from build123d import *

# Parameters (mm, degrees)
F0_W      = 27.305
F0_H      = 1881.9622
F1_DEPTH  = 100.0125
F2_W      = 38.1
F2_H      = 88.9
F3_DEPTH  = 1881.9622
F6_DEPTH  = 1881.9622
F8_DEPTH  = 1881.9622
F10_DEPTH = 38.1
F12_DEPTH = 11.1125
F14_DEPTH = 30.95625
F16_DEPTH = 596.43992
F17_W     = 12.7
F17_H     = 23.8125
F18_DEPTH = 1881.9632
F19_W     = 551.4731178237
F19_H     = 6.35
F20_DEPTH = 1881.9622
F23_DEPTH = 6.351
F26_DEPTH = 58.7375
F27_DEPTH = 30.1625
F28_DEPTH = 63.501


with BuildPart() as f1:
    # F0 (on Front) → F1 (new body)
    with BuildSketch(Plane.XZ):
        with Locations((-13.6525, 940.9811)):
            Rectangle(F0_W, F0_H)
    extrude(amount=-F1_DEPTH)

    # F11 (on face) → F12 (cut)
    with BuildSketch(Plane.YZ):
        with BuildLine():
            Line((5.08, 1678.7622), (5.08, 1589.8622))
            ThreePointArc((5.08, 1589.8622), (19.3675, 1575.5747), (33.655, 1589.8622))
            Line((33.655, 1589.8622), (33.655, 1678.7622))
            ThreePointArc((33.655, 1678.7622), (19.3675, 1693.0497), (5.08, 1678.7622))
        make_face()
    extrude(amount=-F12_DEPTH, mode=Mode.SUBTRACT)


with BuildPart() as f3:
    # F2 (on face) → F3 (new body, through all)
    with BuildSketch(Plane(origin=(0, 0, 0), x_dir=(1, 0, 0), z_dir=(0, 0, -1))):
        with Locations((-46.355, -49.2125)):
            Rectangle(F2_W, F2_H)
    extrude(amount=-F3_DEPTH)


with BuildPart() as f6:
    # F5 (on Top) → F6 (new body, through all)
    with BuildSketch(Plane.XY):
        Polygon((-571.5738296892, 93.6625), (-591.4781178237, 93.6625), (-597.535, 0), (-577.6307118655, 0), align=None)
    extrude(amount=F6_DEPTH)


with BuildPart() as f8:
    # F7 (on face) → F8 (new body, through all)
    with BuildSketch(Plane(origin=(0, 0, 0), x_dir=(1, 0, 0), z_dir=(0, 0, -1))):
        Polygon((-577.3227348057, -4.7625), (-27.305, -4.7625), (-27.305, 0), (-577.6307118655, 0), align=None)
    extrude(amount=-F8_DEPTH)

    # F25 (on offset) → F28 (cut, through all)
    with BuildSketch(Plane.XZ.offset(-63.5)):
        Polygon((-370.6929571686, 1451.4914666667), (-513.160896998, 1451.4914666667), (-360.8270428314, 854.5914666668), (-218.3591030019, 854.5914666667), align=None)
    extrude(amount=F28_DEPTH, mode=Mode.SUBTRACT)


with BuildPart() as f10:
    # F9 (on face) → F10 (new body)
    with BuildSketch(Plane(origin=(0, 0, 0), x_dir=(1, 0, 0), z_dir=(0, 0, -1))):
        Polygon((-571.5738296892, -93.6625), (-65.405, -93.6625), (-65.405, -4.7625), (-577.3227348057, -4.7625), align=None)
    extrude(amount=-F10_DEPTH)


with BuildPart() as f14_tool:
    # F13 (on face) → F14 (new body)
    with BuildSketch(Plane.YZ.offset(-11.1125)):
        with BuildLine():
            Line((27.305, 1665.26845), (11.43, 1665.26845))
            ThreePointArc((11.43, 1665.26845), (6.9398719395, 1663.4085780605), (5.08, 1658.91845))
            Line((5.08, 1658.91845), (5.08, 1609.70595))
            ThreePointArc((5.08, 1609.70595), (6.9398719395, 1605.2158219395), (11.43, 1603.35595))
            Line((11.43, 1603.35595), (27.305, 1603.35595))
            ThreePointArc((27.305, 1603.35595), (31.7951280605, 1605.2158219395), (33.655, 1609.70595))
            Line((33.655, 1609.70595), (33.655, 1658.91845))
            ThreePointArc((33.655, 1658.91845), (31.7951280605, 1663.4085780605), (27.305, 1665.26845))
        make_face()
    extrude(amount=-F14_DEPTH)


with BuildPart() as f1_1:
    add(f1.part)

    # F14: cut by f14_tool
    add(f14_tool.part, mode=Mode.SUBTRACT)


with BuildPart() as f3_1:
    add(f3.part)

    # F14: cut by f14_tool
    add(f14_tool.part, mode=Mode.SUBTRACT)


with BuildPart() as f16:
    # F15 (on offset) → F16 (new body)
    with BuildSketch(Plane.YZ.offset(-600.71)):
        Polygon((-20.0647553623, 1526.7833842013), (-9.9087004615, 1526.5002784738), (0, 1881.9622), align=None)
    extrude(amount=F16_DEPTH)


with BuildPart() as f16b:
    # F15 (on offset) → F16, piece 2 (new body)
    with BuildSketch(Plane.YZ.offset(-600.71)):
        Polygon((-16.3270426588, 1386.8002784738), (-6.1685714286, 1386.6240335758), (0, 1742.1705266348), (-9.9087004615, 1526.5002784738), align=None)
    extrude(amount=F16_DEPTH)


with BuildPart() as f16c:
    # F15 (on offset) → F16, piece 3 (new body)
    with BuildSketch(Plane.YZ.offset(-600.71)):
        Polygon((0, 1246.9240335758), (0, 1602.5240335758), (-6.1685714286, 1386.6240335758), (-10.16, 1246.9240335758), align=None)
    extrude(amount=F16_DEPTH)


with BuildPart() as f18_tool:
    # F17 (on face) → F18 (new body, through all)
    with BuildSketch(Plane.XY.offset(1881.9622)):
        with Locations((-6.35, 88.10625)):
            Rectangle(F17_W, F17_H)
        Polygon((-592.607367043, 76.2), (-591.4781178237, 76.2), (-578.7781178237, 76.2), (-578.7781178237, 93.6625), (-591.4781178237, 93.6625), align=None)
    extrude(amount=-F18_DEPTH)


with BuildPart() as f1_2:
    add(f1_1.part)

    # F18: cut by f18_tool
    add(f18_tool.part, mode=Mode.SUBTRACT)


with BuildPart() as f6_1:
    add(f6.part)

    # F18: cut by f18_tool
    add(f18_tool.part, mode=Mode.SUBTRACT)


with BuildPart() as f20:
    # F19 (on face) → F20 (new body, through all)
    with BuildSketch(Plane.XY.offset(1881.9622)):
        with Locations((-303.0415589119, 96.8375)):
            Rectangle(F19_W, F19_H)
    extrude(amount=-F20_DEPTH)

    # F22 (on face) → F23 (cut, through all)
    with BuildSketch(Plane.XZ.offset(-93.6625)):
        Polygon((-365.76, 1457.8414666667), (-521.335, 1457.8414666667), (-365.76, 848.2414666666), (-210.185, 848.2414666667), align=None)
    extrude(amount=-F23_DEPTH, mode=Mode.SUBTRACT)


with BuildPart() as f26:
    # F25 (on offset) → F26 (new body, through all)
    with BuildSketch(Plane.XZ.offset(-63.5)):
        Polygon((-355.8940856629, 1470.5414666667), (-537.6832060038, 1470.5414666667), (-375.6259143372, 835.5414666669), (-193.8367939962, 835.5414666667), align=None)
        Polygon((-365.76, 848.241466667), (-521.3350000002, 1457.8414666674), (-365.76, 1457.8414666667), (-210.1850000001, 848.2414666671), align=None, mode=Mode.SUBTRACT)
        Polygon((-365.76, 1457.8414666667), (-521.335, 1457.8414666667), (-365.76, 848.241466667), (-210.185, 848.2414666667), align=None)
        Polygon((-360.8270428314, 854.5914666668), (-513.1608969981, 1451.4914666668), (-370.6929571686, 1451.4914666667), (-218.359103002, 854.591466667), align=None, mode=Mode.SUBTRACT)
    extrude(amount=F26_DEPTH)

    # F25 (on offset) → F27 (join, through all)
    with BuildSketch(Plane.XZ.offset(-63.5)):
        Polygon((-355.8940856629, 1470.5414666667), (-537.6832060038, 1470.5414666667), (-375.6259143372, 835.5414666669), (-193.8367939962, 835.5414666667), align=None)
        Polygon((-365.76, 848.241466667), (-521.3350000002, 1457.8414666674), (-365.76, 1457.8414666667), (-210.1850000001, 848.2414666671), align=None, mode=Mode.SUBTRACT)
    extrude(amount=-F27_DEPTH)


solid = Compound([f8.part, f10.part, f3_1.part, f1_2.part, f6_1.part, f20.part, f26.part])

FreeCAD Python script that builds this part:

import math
import FreeCAD as App
import Part
import Sketcher

V = App.Vector
Q = App.Units.Quantity

doc = App.newDocument("Part")
body = doc.addObject("PartDesign::Body", "Body")

# Sketch on XZ plane
sketch1 = body.newObject("Sketcher::SketchObject", "Sketch")
sketch1.AttachmentSupport = (doc.getObject("XZ_Plane"), [""])
sketch1.MapMode = "FlatFace"
sketch1.addGeometry([
    Part.LineSegment(V(-27.305, 1881.9622, 0), V(-27.305, 0, 0)),
    Part.LineSegment(V(-27.305, 0, 0), V(0, 0, 0)),
    Part.LineSegment(V(0, 0, 0), V(0, 1881.9622, 0)),
    Part.LineSegment(V(0, 1881.9622, 0), V(-27.305, 1881.9622, 0)),
], False)
sketch1.addConstraint([
    Sketcher.Constraint("Coincident", 0, 2, 1, 1),
    Sketcher.Constraint("Coincident", 1, 2, 2, 1),
    Sketcher.Constraint("Coincident", 2, 2, 3, 1),
    Sketcher.Constraint("Coincident", 3, 2, 0, 1),
    Sketcher.Constraint("Vertical", 0),
    Sketcher.Constraint("Horizontal", 1),
    Sketcher.Constraint("Vertical", 2),
    Sketcher.Constraint("Horizontal", 3),
    Sketcher.Constraint("Coincident", 1, 2, -1, 1),
    Sketcher.Constraint("DistanceX", 1, 1, 1, 2, Q("1.075 in")),
    Sketcher.Constraint("DistanceY", 0, 2, 0, 1, Q("74.093 in")),
])
pad1 = body.newObject("PartDesign::Pad", "Pad")
pad1.Profile = sketch1
pad1.Length = Q("3.9375 in")
pad1.Reversed = True

# Sketch on YZ plane
sketch2 = body.newObject("Sketcher::SketchObject", "Sketch001")
sketch2.AttachmentSupport = (doc.getObject("YZ_Plane"), [""])
sketch2.MapMode = "FlatFace"
sketch2.addGeometry([
    Part.LineSegment(V(5.08, 1678.7622, 0), V(5.08, 1589.8622, 0)),
    Part.ArcOfCircle(Part.Circle(V(19.3675, 1589.8622, 0), V(0, 0, 1), 14.2875), math.radians(180), math.radians(360)),
    Part.LineSegment(V(33.655, 1589.8622, 0), V(33.655, 1678.7622, 0)),
    Part.ArcOfCircle(Part.Circle(V(19.3675, 1678.7622, 0), V(0, 0, 1), 14.2875), math.radians(0), math.radians(180)),
], False)
sketch2.addConstraint([
    Sketcher.Constraint("Tangent", 0, 2, 1, 1),
    Sketcher.Constraint("Tangent", 1, 2, 2, 1),
    Sketcher.Constraint("Tangent", 2, 2, 3, 1),
    Sketcher.Constraint("Tangent", 3, 2, 0, 1),
    Sketcher.Constraint("Vertical", 0),
    Sketcher.Constraint("Vertical", 2),
    Sketcher.Constraint("DistanceY", 0, 2, 0, 1, Q("3.5 in")),
    Sketcher.Constraint("Radius", 1, Q("0.5625 in")),
    Sketcher.Constraint("DistanceX", -1, 1, 0, 2, Q("0.2 in")),
    Sketcher.Constraint("DistanceY", -1, 1, 1, 3, Q("62.593 in")),
])
pocket1 = body.newObject("PartDesign::Pocket", "Pocket")
pocket1.Profile = sketch2
pocket1.Length = Q("0.4375 in")
body2 = doc.addObject("PartDesign::Body", "Body001")

# Sketch on XY plane
sketch3 = body2.newObject("Sketcher::SketchObject", "Sketch002")
sketch3.AttachmentSupport = (doc.getObject("XY_Plane001"), [""])
sketch3.MapMode = "FlatFace"
sketch3.addGeometry([
    Part.LineSegment(V(-65.405, 4.7625, 0), V(-65.405, 93.6625, 0)),
    Part.LineSegment(V(-65.405, 93.6625, 0), V(-27.305, 93.6625, 0)),
    Part.LineSegment(V(-27.305, 93.6625, 0), V(-27.305, 4.7625, 0)),
    Part.LineSegment(V(-27.305, 4.7625, 0), V(-65.405, 4.7625, 0)),
], False)
sketch3.addConstraint([
    Sketcher.Constraint("Coincident", 0, 2, 1, 1),
    Sketcher.Constraint("Coincident", 1, 2, 2, 1),
    Sketcher.Constraint("Coincident", 2, 2, 3, 1),
    Sketcher.Constraint("Coincident", 3, 2, 0, 1),
    Sketcher.Constraint("Vertical", 0),
    Sketcher.Constraint("Horizontal", 1),
    Sketcher.Constraint("Vertical", 2),
    Sketcher.Constraint("Horizontal", 3),
    Sketcher.Constraint("DistanceX", 1, 1, 1, 2, Q("1.5 in")),
    Sketcher.Constraint("DistanceY", 0, 1, 0, 2, Q("3.5 in")),
    Sketcher.Constraint("DistanceX", 0, 2, -1, 1, Q("2.575 in")),
    Sketcher.Constraint("DistanceY", -1, 1, 0, 2, Q("3.6875 in")),
])
pad2 = body2.newObject("PartDesign::Pad", "Pad001")
pad2.Profile = sketch3
pad2.Length = Q("74.093 in")
body3 = doc.addObject("PartDesign::Body", "Body002")

# Sketch on XY plane
sketch4 = body3.newObject("Sketcher::SketchObject", "Sketch003")
sketch4.AttachmentSupport = (doc.getObject("XY_Plane002"), [""])
sketch4.MapMode = "FlatFace"
sketch4.addGeometry([
    Part.LineSegment(V(-571.57383, 93.6625, 0), V(-591.478118, 93.6625, 0)),
    Part.LineSegment(V(-591.478118, 93.6625, 0), V(-597.535, 0, 0)),
    Part.LineSegment(V(-597.535, 0, 0), V(-577.630712, 0, 0)),
    Part.LineSegment(V(-577.630712, 0, 0), V(-571.57383, 93.6625, 0)),
], False)
sketch4.addConstraint([
    Sketcher.Constraint("Coincident", 0, 2, 1, 1),
    Sketcher.Constraint("Coincident", 1, 2, 2, 1),
    Sketcher.Constraint("Coincident", 2, 2, 3, 1),
    Sketcher.Constraint("Coincident", 3, 2, 0, 1),
    Sketcher.Constraint("Horizontal", 0),
    Sketcher.Constraint("Horizontal", 2),
    Sketcher.Constraint("PointOnObject", 1, 2, -1),
    Sketcher.Constraint("Parallel", 1, 3),
    Sketcher.Constraint("Angle", 1, Q("-93.7 deg")),
    Sketcher.Constraint("DistanceY", -1, 1, 0, 2, Q("3.6875 in")),
    Sketcher.Constraint("DistanceX", 1, 2, -1, 1, Q("23.525 in")),
    Sketcher.Constraint("DistanceX", 0, 2, 0, 1, 19.904288),
])
pad3 = body3.newObject("PartDesign::Pad", "Pad002")
pad3.Profile = sketch4
pad3.Length = Q("74.093 in")
body4 = doc.addObject("PartDesign::Body", "Body003")

# Sketch on XY plane
sketch5 = body4.newObject("Sketcher::SketchObject", "Sketch004")
sketch5.AttachmentSupport = (doc.getObject("XY_Plane003"), [""])
sketch5.MapMode = "FlatFace"
sketch5.addGeometry([
    Part.LineSegment(V(-577.322735, 4.7625, 0), V(-27.305, 4.7625, 0)),
    Part.LineSegment(V(-27.305, 4.7625, 0), V(-27.305, 0, 0)),
    Part.LineSegment(V(-27.305, 0, 0), V(-577.630712, 0, 0)),
    Part.LineSegment(V(-577.630712, 0, 0), V(-577.322735, 4.7625, 0)),
], False)
sketch5.addConstraint([
    Sketcher.Constraint("Coincident", 0, 2, 1, 1),
    Sketcher.Constraint("Coincident", 1, 2, 2, 1),
    Sketcher.Constraint("Coincident", 2, 2, 3, 1),
    Sketcher.Constraint("Coincident", 3, 2, 0, 1),
    Sketcher.Constraint("Horizontal", 0),
    Sketcher.Constraint("Vertical", 1),
    Sketcher.Constraint("Horizontal", 2),
    Sketcher.Constraint("PointOnObject", 1, 2, -1),
    Sketcher.Constraint("Angle", 3, Q("86.3 deg")),
    Sketcher.Constraint("DistanceY", 1, 2, 1, 1, Q("0.1875 in")),
    Sketcher.Constraint("DistanceX", 0, 2, -1, 1, Q("1.075 in")),
    Sketcher.Constraint("DistanceX", 2, 2, 2, 1, 550.325712),
])
pad4 = body4.newObject("PartDesign::Pad", "Pad003")
pad4.Profile = sketch5
pad4.Length = Q("74.093 in")

# Sketch on XZ plane
sketch6 = body4.newObject("Sketcher::SketchObject", "Sketch005")
sketch6.AttachmentSupport = (doc.getObject("XZ_Plane003"), [""])
sketch6.MapMode = "FlatFace"
sketch6.AttachmentOffset = App.Placement(V(0, 0, -2.5 * 25.4), App.Rotation())
sketch6.addGeometry([
    Part.LineSegment(V(-370.692957, 1451.491467, 0), V(-513.160897, 1451.491467, 0)),
    Part.LineSegment(V(-513.160897, 1451.491467, 0), V(-360.827043, 854.591467, 0)),
    Part.LineSegment(V(-360.827043, 854.591467, 0), V(-218.359103, 854.591467, 0)),
    Part.LineSegment(V(-218.359103, 854.591467, 0), V(-370.692957, 1451.491467, 0)),
], False)
sketch6.addConstraint([
    Sketcher.Constraint("Coincident", 0, 2, 1, 1),
    Sketcher.Constraint("Coincident", 1, 2, 2, 1),
    Sketcher.Constraint("Coincident", 2, 2, 3, 1),
    Sketcher.Constraint("Coincident", 3, 2, 0, 1),
    Sketcher.Constraint("Horizontal", 0),
    Sketcher.Constraint("Horizontal", 2),
    Sketcher.Constraint("Parallel", 1, 3),
    Sketcher.Constraint("DistanceY", 1, 2, 0, 2, Q("23.5 in")),
    Sketcher.Constraint("DistanceX", 0, 2, 0, 1, 142.46794),
    Sketcher.Constraint("Distance", 1, 616.031828),
    Sketcher.Constraint("DistanceX", 0, 2, -1, 1, 513.160897),
    Sketcher.Constraint("DistanceY", -1, 1, 0, 2, 1451.491467),
])
pocket2 = body4.newObject("PartDesign::Pocket", "Pocket001")
pocket2.Profile = sketch6
pocket2.Type = "ThroughAll"
pocket2.Reversed = True
body5 = doc.addObject("PartDesign::Body", "Body004")

# Sketch on XY plane
sketch7 = body5.newObject("Sketcher::SketchObject", "Sketch006")
sketch7.AttachmentSupport = (doc.getObject("XY_Plane004"), [""])
sketch7.MapMode = "FlatFace"
sketch7.addGeometry([
    Part.LineSegment(V(-571.57383, 93.6625, 0), V(-65.405, 93.6625, 0)),
    Part.LineSegment(V(-65.405, 93.6625, 0), V(-65.405, 4.7625, 0)),
    Part.LineSegment(V(-65.405, 4.7625, 0), V(-577.322735, 4.7625, 0)),
    Part.LineSegment(V(-577.322735, 4.7625, 0), V(-571.57383, 93.6625, 0)),
], False)
sketch7.addConstraint([
    Sketcher.Constraint("Coincident", 0, 2, 1, 1),
    Sketcher.Constraint("Coincident", 1, 2, 2, 1),
    Sketcher.Constraint("Coincident", 2, 2, 3, 1),
    Sketcher.Constraint("Coincident", 3, 2, 0, 1),
    Sketcher.Constraint("Horizontal", 0),
    Sketcher.Constraint("Vertical", 1),
    Sketcher.Constraint("Horizontal", 2),
    Sketcher.Constraint("DistanceY", 1, 2, 1, 1, Q("3.5 in")),
    Sketcher.Constraint("Angle", 3, Q("86.3 deg")),
    Sketcher.Constraint("DistanceX", 0, 2, -1, 1, Q("2.575 in")),
    Sketcher.Constraint("DistanceY", -1, 1, 0, 2, Q("3.6875 in")),
    Sketcher.Constraint("DistanceX", 0, 1, 0, 2, 506.16883),
])
pad5 = body5.newObject("PartDesign::Pad", "Pad004")
pad5.Profile = sketch7
pad5.Length = Q("1.5 in")
body6 = doc.addObject("PartDesign::Body", "Body005")

# Sketch on YZ plane
sketch8 = body6.newObject("Sketcher::SketchObject", "Sketch007")
sketch8.AttachmentSupport = (doc.getObject("YZ_Plane005"), [""])
sketch8.MapMode = "FlatFace"
sketch8.AttachmentOffset = App.Placement(V(0, 0, -0.4375 * 25.4), App.Rotation())
sketch8.addGeometry([
    Part.LineSegment(V(27.305, 1665.26845, 0), V(11.43, 1665.26845, 0)),  # 0
    Part.ArcOfCircle(Part.Circle(V(11.43, 1658.91845, 0), V(0, 0, 1), 6.35), math.radians(90), math.radians(180)),  # 1
    Part.LineSegment(V(5.08, 1658.91845, 0), V(5.08, 1609.70595, 0)),  # 2
    Part.ArcOfCircle(Part.Circle(V(11.43, 1609.70595, 0), V(0, 0, 1), 6.35), math.radians(180), math.radians(270)),  # 3
    Part.LineSegment(V(11.43, 1603.35595, 0), V(27.305, 1603.35595, 0)),  # 4
    Part.ArcOfCircle(Part.Circle(V(27.305, 1609.70595, 0), V(0, 0, 1), 6.35), math.radians(-90), math.radians(0)),  # 5
    Part.LineSegment(V(33.655, 1609.70595, 0), V(33.655, 1658.91845, 0)),  # 6
    Part.ArcOfCircle(Part.Circle(V(27.305, 1658.91845, 0), V(0, 0, 1), 6.35), math.radians(0), math.radians(90)),  # 7
], False)
sketch8.addConstraint([
    Sketcher.Constraint("Tangent", 0, 2, 1, 1),
    Sketcher.Constraint("Tangent", 1, 2, 2, 1),
    Sketcher.Constraint("Tangent", 2, 2, 3, 1),
    Sketcher.Constraint("Tangent", 3, 2, 4, 1),
    Sketcher.Constraint("Tangent", 4, 2, 5, 1),
    Sketcher.Constraint("Tangent", 5, 2, 6, 1),
    Sketcher.Constraint("Tangent", 6, 2, 7, 1),
    Sketcher.Constraint("Tangent", 7, 2, 0, 1),
    Sketcher.Constraint("Horizontal", 0),
    Sketcher.Constraint("Vertical", 2),
    Sketcher.Constraint("Horizontal", 4),
    Sketcher.Constraint("Vertical", 6),
    Sketcher.Constraint("Equal", 1, 3),
    Sketcher.Constraint("Equal", 3, 5),
    Sketcher.Constraint("Equal", 5, 7),
    Sketcher.Constraint("Radius", 1, Q("0.25 in")),
    Sketcher.Constraint("DistanceX", -1, 1, 1, 2, Q("0.2 in")),
    Sketcher.Constraint("DistanceX", 0, 2, 0, 1, Q("0.625 in")),
    Sketcher.Constraint("DistanceY", 2, 2, 2, 1, Q("1.9375 in")),
    Sketcher.Constraint("DistanceY", -1, 1, 1, 3, 1658.91845),
])
pad6 = body6.newObject("PartDesign::Pad", "Pad005")
pad6.Profile = sketch8
pad6.Length = Q("1.21875 in")
pad6.Reversed = True
doc.recompute()

body7 = doc.addObject("PartDesign::Body", "Body006")
body7.BaseFeature = body6
boolean = body.newObject("PartDesign::Boolean", "Boolean")
boolean.Type = "Cut"
boolean.addObjects([body7])
doc.recompute()

boolean2 = body2.newObject("PartDesign::Boolean", "Boolean001")
boolean2.Type = "Cut"
boolean2.addObjects([body6])
body8 = doc.addObject("PartDesign::Body", "Body007")

# Sketch on YZ plane
sketch9 = body8.newObject("Sketcher::SketchObject", "Sketch008")
sketch9.AttachmentSupport = (doc.getObject("YZ_Plane007"), [""])
sketch9.MapMode = "FlatFace"
sketch9.AttachmentOffset = App.Placement(V(0, 0, -23.65 * 25.4), App.Rotation())
sketch9.addGeometry([
    Part.LineSegment(V(-20.064755, 1526.783384, 0), V(-9.9087, 1526.500278, 0)),
    Part.LineSegment(V(-9.9087, 1526.500278, 0), V(0, 1881.9622, 0)),
    Part.LineSegment(V(0, 1881.9622, 0), V(-20.064755, 1526.783384, 0)),
], False)
sketch9.addConstraint([
    Sketcher.Constraint("Coincident", 0, 2, 1, 1),
    Sketcher.Constraint("Coincident", 1, 2, 2, 1),
    Sketcher.Constraint("Coincident", 2, 2, 0, 1),
    Sketcher.Constraint("PointOnObject", 1, 2, -2),
    Sketcher.Constraint("Perpendicular", 0, 1),
    Sketcher.Constraint("Distance", 1, Q("14 in")),
    Sketcher.Constraint("Distance", 0, Q("0.4 in")),
    Sketcher.Constraint("DistanceY", -1, 1, 1, 2, Q("74.093 in")),
    Sketcher.Constraint("DistanceX", 0, 2, -1, 1, 9.9087),
])
pad7 = body8.newObject("PartDesign::Pad", "Pad006")
pad7.Profile = sketch9
pad7.Length = 596.43992
body9 = doc.addObject("PartDesign::Body", "Body008")

# Sketch on YZ plane
sketch10 = body9.newObject("Sketcher::SketchObject", "Sketch009")
sketch10.AttachmentSupport = (doc.getObject("YZ_Plane008"), [""])
sketch10.MapMode = "FlatFace"
sketch10.AttachmentOffset = App.Placement(V(0, 0, -23.65 * 25.4), App.Rotation())
sketch10.addGeometry([
    Part.LineSegment(V(-16.327043, 1386.800278, 0), V(-6.168571, 1386.624034, 0)),
    Part.LineSegment(V(-6.168571, 1386.624034, 0), V(0, 1742.170527, 0)),
    Part.LineSegment(V(0, 1742.170527, 0), V(-16.327043, 1386.800278, 0)),
], False)
sketch10.addConstraint([
    Sketcher.Constraint("Coincident", 0, 2, 1, 1),
    Sketcher.Constraint("Coincident", 1, 2, 2, 1),
    Sketcher.Constraint("Coincident", 2, 2, 0, 1),
    Sketcher.Constraint("PointOnObject", 1, 2, -2),
    Sketcher.Constraint("Perpendicular", 0, 1),
    Sketcher.Constraint("Distance", 1, Q("14 in")),
    Sketcher.Constraint("Distance", 0, Q("0.4 in")),
    Sketcher.Constraint("DistanceX", 0, 2, -1, 1, 6.168571),
    Sketcher.Constraint("DistanceY", -1, 1, 2, 2, 1386.800278),
])
pad8 = body9.newObject("PartDesign::Pad", "Pad007")
pad8.Profile = sketch10
pad8.Length = 596.43992
body10 = doc.addObject("PartDesign::Body", "Body009")

# Sketch on YZ plane
sketch11 = body10.newObject("Sketcher::SketchObject", "Sketch010")
sketch11.AttachmentSupport = (doc.getObject("YZ_Plane009"), [""])
sketch11.MapMode = "FlatFace"
sketch11.AttachmentOffset = App.Placement(V(0, 0, -23.65 * 25.4), App.Rotation())
sketch11.addGeometry([
    Part.LineSegment(V(0, 1246.924034, 0), V(0, 1602.524034, 0)),
    Part.LineSegment(V(0, 1602.524034, 0), V(-10.16, 1246.924034, 0)),
    Part.LineSegment(V(-10.16, 1246.924034, 0), V(0, 1246.924034, 0)),
], False)
sketch11.addConstraint([
    Sketcher.Constraint("Coincident", 0, 2, 1, 1),
    Sketcher.Constraint("Coincident", 1, 2, 2, 1),
    Sketcher.Constraint("Coincident", 2, 2, 0, 1),
    Sketcher.Constraint("Vertical", 0),
    Sketcher.Constraint("Horizontal", 2),
    Sketcher.Constraint("PointOnObject", 0, 2, -2),
    Sketcher.Constraint("DistanceY", 0, 1, 0, 2, Q("14 in")),
    Sketcher.Constraint("DistanceX", 2, 1, 2, 2, Q("0.4 in")),
    Sketcher.Constraint("DistanceY", -1, 1, 0, 2, 1602.524034),
])
pad9 = body10.newObject("PartDesign::Pad", "Pad008")
pad9.Profile = sketch11
pad9.Length = 596.43992
body11 = doc.addObject("PartDesign::Body", "Body010")
body11.AllowCompound = True

# Sketch on XY plane
sketch12 = body11.newObject("Sketcher::SketchObject", "Sketch011")
sketch12.AttachmentSupport = (doc.getObject("XY_Plane010"), [""])
sketch12.MapMode = "FlatFace"
sketch12.AttachmentOffset = App.Placement(V(0, 0, 74.093 * 25.4), App.Rotation())
sketch12.addGeometry([
    Part.LineSegment(V(-12.7, 100.0125, 0), V(-12.7, 76.2, 0)),  # 0
    Part.LineSegment(V(-12.7, 76.2, 0), V(0, 76.2, 0)),  # 1
    Part.LineSegment(V(0, 76.2, 0), V(0, 100.0125, 0)),  # 2
    Part.LineSegment(V(0, 100.0125, 0), V(-12.7, 100.0125, 0)),  # 3
    Part.LineSegment(V(-592.607367, 76.2, 0), V(-578.778118, 76.2, 0)),  # 4
    Part.LineSegment(V(-578.778118, 76.2, 0), V(-578.778118, 93.6625, 0)),  # 5
    Part.LineSegment(V(-578.778118, 93.6625, 0), V(-591.478118, 93.6625, 0)),  # 6
    Part.LineSegment(V(-591.478118, 93.6625, 0), V(-592.607367, 76.2, 0)),  # 7
], False)
sketch12.addConstraint([
    Sketcher.Constraint("Coincident", 0, 2, 1, 1),
    Sketcher.Constraint("Coincident", 1, 2, 2, 1),
    Sketcher.Constraint("Coincident", 2, 2, 3, 1),
    Sketcher.Constraint("Coincident", 3, 2, 0, 1),
    Sketcher.Constraint("Coincident", 4, 2, 5, 1),
    Sketcher.Constraint("Coincident", 5, 2, 6, 1),
    Sketcher.Constraint("Coincident", 6, 2, 7, 1),
    Sketcher.Constraint("Coincident", 7, 2, 4, 1),
    Sketcher.Constraint("Vertical", 0),
    Sketcher.Constraint("Horizontal", 1),
    Sketcher.Constraint("Vertical", 2),
    Sketcher.Constraint("Horizontal", 3),
    Sketcher.Constraint("Horizontal", 4),
    Sketcher.Constraint("Vertical", 5),
    Sketcher.Constraint("Horizontal", 6),
    Sketcher.Constraint("PointOnObject", 1, 2, -2),
    Sketcher.Constraint("Horizontal", 1, 2, 4, 2),
    Sketcher.Constraint("Equal", 3, 6),
    Sketcher.Constraint("DistanceX", 1, 1, 1, 2, Q("0.5 in")),
    Sketcher.Constraint("DistanceY", -1, 1, 0, 2, Q("3 in")),
    Sketcher.Constraint("Angle", 7, Q("-93.7 deg")),
    Sketcher.Constraint("DistanceY", 0, 2, 0, 1, Q("0.9375 in")),
    Sketcher.Constraint("DistanceY", 5, 1, 5, 2, Q("0.6875 in")),
    Sketcher.Constraint("DistanceX", 4, 2, -1, 1, 578.778118),
])
pad10 = body11.newObject("PartDesign::Pad", "Pad009")
pad10.Profile = sketch12
pad10.Length = 1881.9632
pad10.Reversed = True
doc.recompute()

body12 = doc.addObject("PartDesign::Body", "Body011")
body12.BaseFeature = body11
boolean3 = body.newObject("PartDesign::Boolean", "Boolean002")
boolean3.Type = "Cut"
boolean3.addObjects([body12])
doc.recompute()

boolean4 = body3.newObject("PartDesign::Boolean", "Boolean003")
boolean4.Type = "Cut"
boolean4.addObjects([body11])
body13 = doc.addObject("PartDesign::Body", "Body012")

# Sketch on XY plane
sketch13 = body13.newObject("Sketcher::SketchObject", "Sketch012")
sketch13.AttachmentSupport = (doc.getObject("XY_Plane012"), [""])
sketch13.MapMode = "FlatFace"
sketch13.AttachmentOffset = App.Placement(V(0, 0, 74.093 * 25.4), App.Rotation())
sketch13.addGeometry([
    Part.LineSegment(V(-578.778118, 100.0125, 0), V(-578.778118, 93.6625, 0)),
    Part.LineSegment(V(-578.778118, 93.6625, 0), V(-27.305, 93.6625, 0)),
    Part.LineSegment(V(-27.305, 93.6625, 0), V(-27.305, 100.0125, 0)),
    Part.LineSegment(V(-27.305, 100.0125, 0), V(-578.778118, 100.0125, 0)),
], False)
sketch13.addConstraint([
    Sketcher.Constraint("Coincident", 0, 2, 1, 1),
    Sketcher.Constraint("Coincident", 1, 2, 2, 1),
    Sketcher.Constraint("Coincident", 2, 2, 3, 1),
    Sketcher.Constraint("Coincident", 3, 2, 0, 1),
    Sketcher.Constraint("Vertical", 0),
    Sketcher.Constraint("Horizontal", 1),
    Sketcher.Constraint("Vertical", 2),
    Sketcher.Constraint("Horizontal", 3),
    Sketcher.Constraint("DistanceY", 0, 2, 0, 1, Q("0.25 in")),
    Sketcher.Constraint("DistanceY", -1, 1, 0, 2, Q("3.6875 in")),
    Sketcher.Constraint("DistanceX", 1, 2, -1, 1, Q("1.075 in")),
    Sketcher.Constraint("DistanceX", 1, 1, 1, 2, 551.473118),
])
pad11 = body13.newObject("PartDesign::Pad", "Pad010")
pad11.Profile = sketch13
pad11.Length = Q("74.093 in")
pad11.Reversed = True

# Sketch on XZ plane
sketch14 = body13.newObject("Sketcher::SketchObject", "Sketch013")
sketch14.AttachmentSupport = (doc.getObject("XZ_Plane012"), [""])
sketch14.MapMode = "FlatFace"
sketch14.AttachmentOffset = App.Placement(V(0, 0, -3.6875 * 25.4), App.Rotation())
sketch14.addGeometry([
    Part.LineSegment(V(-365.76, 1457.841467, 0), V(-521.335, 1457.841467, 0)),
    Part.LineSegment(V(-521.335, 1457.841467, 0), V(-365.76, 848.241467, 0)),
    Part.LineSegment(V(-365.76, 848.241467, 0), V(-210.185, 848.241467, 0)),
    Part.LineSegment(V(-210.185, 848.241467, 0), V(-365.76, 1457.841467, 0)),
], False)
sketch14.addConstraint([
    Sketcher.Constraint("Coincident", 0, 2, 1, 1),
    Sketcher.Constraint("Coincident", 1, 2, 2, 1),
    Sketcher.Constraint("Coincident", 2, 2, 3, 1),
    Sketcher.Constraint("Coincident", 3, 2, 0, 1),
    Sketcher.Constraint("Horizontal", 0),
    Sketcher.Constraint("Horizontal", 2),
    Sketcher.Constraint("Parallel", 1, 3),
    Sketcher.Constraint("Vertical", 1, 2, 3, 2),
    Sketcher.Constraint("DistanceY", 1, 2, 0, 2, Q("24 in")),
    Sketcher.Constraint("DistanceX", 1, 2, -1, 1, Q("14.4 in")),
    Sketcher.Constraint("DistanceX", 0, 2, 0, 1, Q("6.125 in")),
    Sketcher.Constraint("DistanceY", -1, 1, 0, 2, 1457.841467),
])
pocket3 = body13.newObject("PartDesign::Pocket", "Pocket002")
pocket3.Profile = sketch14
pocket3.Type = "ThroughAll"
body14 = doc.addObject("PartDesign::Body", "Body013")

# Sketch on XZ plane
sketch15 = body14.newObject("Sketcher::SketchObject", "Sketch014")
sketch15.AttachmentSupport = (doc.getObject("XZ_Plane013"), [""])
sketch15.MapMode = "FlatFace"
sketch15.AttachmentOffset = App.Placement(V(0, 0, -2.5 * 25.4), App.Rotation())
sketch15.addGeometry([
    Part.LineSegment(V(-355.894086, 1470.541467, 0), V(-537.683206, 1470.541467, 0)),  # 0
    Part.LineSegment(V(-537.683206, 1470.541467, 0), V(-375.625914, 835.541467, 0)),  # 1
    Part.LineSegment(V(-375.625914, 835.541467, 0), V(-193.836794, 835.541467, 0)),  # 2
    Part.LineSegment(V(-193.836794, 835.541467, 0), V(-355.894086, 1470.541467, 0)),  # 3
    Part.LineSegment(V(-218.359103, 854.591467, 0), V(-360.827043, 854.591467, 0)),  # 4
    Part.LineSegment(V(-360.827043, 854.591467, 0), V(-513.160897, 1451.491467, 0)),  # 5
    Part.LineSegment(V(-513.160897, 1451.491467, 0), V(-370.692957, 1451.491467, 0)),  # 6
    Part.LineSegment(V(-370.692957, 1451.491467, 0), V(-218.359103, 854.591467, 0)),  # 7
], False)
sketch15.addConstraint([
    Sketcher.Constraint("Coincident", 0, 2, 1, 1),
    Sketcher.Constraint("Coincident", 1, 2, 2, 1),
    Sketcher.Constraint("Coincident", 2, 2, 3, 1),
    Sketcher.Constraint("Coincident", 3, 2, 0, 1),
    Sketcher.Constraint("Coincident", 4, 2, 5, 1),
    Sketcher.Constraint("Coincident", 5, 2, 6, 1),
    Sketcher.Constraint("Coincident", 6, 2, 7, 1),
    Sketcher.Constraint("Coincident", 7, 2, 4, 1),
    Sketcher.Constraint("Horizontal", 0),
    Sketcher.Constraint("Horizontal", 2),
    Sketcher.Constraint("Horizontal", 4),
    Sketcher.Constraint("Horizontal", 6),
    Sketcher.Constraint("Parallel", 1, 3),
    Sketcher.Constraint("Parallel", 3, 5),
    Sketcher.Constraint("Parallel", 5, 7),
    Sketcher.Constraint("DistanceY", 1, 2, 0, 2, Q("25 in")),
    Sketcher.Constraint("DistanceY", 4, 2, 5, 2, Q("23.5 in")),
    Sketcher.Constraint("DistanceY", 1, 2, 4, 2, Q("0.75 in")),
    Sketcher.Constraint("DistanceX", 0, 2, 0, 1, 181.78912),
    Sketcher.Constraint("DistanceX", 4, 2, 4, 1, 142.46794),
    Sketcher.Constraint("Distance", 1, 655.353009),
    Sketcher.Constraint("DistanceX", 1, 2, 4, 2, 14.798872),
    Sketcher.Constraint("DistanceX", 0, 2, -1, 1, 537.683206),
    Sketcher.Constraint("DistanceY", -1, 1, 0, 2, 1470.541467),
])
pad12 = body14.newObject("PartDesign::Pad", "Pad011")
pad12.Profile = sketch15
pad12.Length = Q("2.3125 in")

# Sketch on XZ plane
sketch16 = body14.newObject("Sketcher::SketchObject", "Sketch015")
sketch16.AttachmentSupport = (doc.getObject("XZ_Plane013"), [""])
sketch16.MapMode = "FlatFace"
sketch16.AttachmentOffset = App.Placement(V(0, 0, -2.5 * 25.4), App.Rotation())
sketch16.addGeometry([
    Part.LineSegment(V(-355.894086, 1470.541467, 0), V(-537.683206, 1470.541467, 0)),  # 0
    Part.LineSegment(V(-537.683206, 1470.541467, 0), V(-375.625914, 835.541467, 0)),  # 1
    Part.LineSegment(V(-375.625914, 835.541467, 0), V(-193.836794, 835.541467, 0)),  # 2
    Part.LineSegment(V(-193.836794, 835.541467, 0), V(-355.894086, 1470.541467, 0)),  # 3
    Part.LineSegment(V(-210.185, 848.241467, 0), V(-365.76, 848.241467, 0)),  # 4
    Part.LineSegment(V(-365.76, 848.241467, 0), V(-521.335, 1457.841467, 0)),  # 5
    Part.LineSegment(V(-521.335, 1457.841467, 0), V(-365.76, 1457.841467, 0)),  # 6
    Part.LineSegment(V(-365.76, 1457.841467, 0), V(-210.185, 848.241467, 0)),  # 7
], False)
sketch16.addConstraint([
    Sketcher.Constraint("Coincident", 0, 2, 1, 1),
    Sketcher.Constraint("Coincident", 1, 2, 2, 1),
    Sketcher.Constraint("Coincident", 2, 2, 3, 1),
    Sketcher.Constraint("Coincident", 3, 2, 0, 1),
    Sketcher.Constraint("Coincident", 4, 2, 5, 1),
    Sketcher.Constraint("Coincident", 5, 2, 6, 1),
    Sketcher.Constraint("Coincident", 6, 2, 7, 1),
    Sketcher.Constraint("Coincident", 7, 2, 4, 1),
    Sketcher.Constraint("Horizontal", 0),
    Sketcher.Constraint("Horizontal", 2),
    Sketcher.Constraint("Horizontal", 4),
    Sketcher.Constraint("Horizontal", 6),
    Sketcher.Constraint("Parallel", 1, 3),
    Sketcher.Constraint("Parallel", 3, 5),
    Sketcher.Constraint("Parallel", 5, 7),
    Sketcher.Constraint("Vertical", 4, 2, 6, 2),
    Sketcher.Constraint("DistanceY", 1, 2, 0, 2, Q("25 in")),
    Sketcher.Constraint("DistanceY", 4, 2, 5, 2, Q("24 in")),
    Sketcher.Constraint("DistanceX", 4, 2, -1, 1, Q("14.4 in")),
    Sketcher.Constraint("DistanceY", 1, 2, 4, 2, Q("0.5 in")),
    Sketcher.Constraint("DistanceX", 4, 2, 4, 1, Q("6.125 in")),
    Sketcher.Constraint("DistanceX", 0, 2, 0, 1, 181.78912),
    Sketcher.Constraint("DistanceX", 0, 2, -1, 1, 537.683206),
    Sketcher.Constraint("DistanceY", -1, 1, 0, 2, 1470.541467),
])
pad13 = body14.newObject("PartDesign::Pad", "Pad012")
pad13.Profile = sketch16
pad13.Length = Q("1.1875 in")
pad13.Reversed = True
body8.Visibility = False
body9.Visibility = False
body10.Visibility = False

doc.recompute()
